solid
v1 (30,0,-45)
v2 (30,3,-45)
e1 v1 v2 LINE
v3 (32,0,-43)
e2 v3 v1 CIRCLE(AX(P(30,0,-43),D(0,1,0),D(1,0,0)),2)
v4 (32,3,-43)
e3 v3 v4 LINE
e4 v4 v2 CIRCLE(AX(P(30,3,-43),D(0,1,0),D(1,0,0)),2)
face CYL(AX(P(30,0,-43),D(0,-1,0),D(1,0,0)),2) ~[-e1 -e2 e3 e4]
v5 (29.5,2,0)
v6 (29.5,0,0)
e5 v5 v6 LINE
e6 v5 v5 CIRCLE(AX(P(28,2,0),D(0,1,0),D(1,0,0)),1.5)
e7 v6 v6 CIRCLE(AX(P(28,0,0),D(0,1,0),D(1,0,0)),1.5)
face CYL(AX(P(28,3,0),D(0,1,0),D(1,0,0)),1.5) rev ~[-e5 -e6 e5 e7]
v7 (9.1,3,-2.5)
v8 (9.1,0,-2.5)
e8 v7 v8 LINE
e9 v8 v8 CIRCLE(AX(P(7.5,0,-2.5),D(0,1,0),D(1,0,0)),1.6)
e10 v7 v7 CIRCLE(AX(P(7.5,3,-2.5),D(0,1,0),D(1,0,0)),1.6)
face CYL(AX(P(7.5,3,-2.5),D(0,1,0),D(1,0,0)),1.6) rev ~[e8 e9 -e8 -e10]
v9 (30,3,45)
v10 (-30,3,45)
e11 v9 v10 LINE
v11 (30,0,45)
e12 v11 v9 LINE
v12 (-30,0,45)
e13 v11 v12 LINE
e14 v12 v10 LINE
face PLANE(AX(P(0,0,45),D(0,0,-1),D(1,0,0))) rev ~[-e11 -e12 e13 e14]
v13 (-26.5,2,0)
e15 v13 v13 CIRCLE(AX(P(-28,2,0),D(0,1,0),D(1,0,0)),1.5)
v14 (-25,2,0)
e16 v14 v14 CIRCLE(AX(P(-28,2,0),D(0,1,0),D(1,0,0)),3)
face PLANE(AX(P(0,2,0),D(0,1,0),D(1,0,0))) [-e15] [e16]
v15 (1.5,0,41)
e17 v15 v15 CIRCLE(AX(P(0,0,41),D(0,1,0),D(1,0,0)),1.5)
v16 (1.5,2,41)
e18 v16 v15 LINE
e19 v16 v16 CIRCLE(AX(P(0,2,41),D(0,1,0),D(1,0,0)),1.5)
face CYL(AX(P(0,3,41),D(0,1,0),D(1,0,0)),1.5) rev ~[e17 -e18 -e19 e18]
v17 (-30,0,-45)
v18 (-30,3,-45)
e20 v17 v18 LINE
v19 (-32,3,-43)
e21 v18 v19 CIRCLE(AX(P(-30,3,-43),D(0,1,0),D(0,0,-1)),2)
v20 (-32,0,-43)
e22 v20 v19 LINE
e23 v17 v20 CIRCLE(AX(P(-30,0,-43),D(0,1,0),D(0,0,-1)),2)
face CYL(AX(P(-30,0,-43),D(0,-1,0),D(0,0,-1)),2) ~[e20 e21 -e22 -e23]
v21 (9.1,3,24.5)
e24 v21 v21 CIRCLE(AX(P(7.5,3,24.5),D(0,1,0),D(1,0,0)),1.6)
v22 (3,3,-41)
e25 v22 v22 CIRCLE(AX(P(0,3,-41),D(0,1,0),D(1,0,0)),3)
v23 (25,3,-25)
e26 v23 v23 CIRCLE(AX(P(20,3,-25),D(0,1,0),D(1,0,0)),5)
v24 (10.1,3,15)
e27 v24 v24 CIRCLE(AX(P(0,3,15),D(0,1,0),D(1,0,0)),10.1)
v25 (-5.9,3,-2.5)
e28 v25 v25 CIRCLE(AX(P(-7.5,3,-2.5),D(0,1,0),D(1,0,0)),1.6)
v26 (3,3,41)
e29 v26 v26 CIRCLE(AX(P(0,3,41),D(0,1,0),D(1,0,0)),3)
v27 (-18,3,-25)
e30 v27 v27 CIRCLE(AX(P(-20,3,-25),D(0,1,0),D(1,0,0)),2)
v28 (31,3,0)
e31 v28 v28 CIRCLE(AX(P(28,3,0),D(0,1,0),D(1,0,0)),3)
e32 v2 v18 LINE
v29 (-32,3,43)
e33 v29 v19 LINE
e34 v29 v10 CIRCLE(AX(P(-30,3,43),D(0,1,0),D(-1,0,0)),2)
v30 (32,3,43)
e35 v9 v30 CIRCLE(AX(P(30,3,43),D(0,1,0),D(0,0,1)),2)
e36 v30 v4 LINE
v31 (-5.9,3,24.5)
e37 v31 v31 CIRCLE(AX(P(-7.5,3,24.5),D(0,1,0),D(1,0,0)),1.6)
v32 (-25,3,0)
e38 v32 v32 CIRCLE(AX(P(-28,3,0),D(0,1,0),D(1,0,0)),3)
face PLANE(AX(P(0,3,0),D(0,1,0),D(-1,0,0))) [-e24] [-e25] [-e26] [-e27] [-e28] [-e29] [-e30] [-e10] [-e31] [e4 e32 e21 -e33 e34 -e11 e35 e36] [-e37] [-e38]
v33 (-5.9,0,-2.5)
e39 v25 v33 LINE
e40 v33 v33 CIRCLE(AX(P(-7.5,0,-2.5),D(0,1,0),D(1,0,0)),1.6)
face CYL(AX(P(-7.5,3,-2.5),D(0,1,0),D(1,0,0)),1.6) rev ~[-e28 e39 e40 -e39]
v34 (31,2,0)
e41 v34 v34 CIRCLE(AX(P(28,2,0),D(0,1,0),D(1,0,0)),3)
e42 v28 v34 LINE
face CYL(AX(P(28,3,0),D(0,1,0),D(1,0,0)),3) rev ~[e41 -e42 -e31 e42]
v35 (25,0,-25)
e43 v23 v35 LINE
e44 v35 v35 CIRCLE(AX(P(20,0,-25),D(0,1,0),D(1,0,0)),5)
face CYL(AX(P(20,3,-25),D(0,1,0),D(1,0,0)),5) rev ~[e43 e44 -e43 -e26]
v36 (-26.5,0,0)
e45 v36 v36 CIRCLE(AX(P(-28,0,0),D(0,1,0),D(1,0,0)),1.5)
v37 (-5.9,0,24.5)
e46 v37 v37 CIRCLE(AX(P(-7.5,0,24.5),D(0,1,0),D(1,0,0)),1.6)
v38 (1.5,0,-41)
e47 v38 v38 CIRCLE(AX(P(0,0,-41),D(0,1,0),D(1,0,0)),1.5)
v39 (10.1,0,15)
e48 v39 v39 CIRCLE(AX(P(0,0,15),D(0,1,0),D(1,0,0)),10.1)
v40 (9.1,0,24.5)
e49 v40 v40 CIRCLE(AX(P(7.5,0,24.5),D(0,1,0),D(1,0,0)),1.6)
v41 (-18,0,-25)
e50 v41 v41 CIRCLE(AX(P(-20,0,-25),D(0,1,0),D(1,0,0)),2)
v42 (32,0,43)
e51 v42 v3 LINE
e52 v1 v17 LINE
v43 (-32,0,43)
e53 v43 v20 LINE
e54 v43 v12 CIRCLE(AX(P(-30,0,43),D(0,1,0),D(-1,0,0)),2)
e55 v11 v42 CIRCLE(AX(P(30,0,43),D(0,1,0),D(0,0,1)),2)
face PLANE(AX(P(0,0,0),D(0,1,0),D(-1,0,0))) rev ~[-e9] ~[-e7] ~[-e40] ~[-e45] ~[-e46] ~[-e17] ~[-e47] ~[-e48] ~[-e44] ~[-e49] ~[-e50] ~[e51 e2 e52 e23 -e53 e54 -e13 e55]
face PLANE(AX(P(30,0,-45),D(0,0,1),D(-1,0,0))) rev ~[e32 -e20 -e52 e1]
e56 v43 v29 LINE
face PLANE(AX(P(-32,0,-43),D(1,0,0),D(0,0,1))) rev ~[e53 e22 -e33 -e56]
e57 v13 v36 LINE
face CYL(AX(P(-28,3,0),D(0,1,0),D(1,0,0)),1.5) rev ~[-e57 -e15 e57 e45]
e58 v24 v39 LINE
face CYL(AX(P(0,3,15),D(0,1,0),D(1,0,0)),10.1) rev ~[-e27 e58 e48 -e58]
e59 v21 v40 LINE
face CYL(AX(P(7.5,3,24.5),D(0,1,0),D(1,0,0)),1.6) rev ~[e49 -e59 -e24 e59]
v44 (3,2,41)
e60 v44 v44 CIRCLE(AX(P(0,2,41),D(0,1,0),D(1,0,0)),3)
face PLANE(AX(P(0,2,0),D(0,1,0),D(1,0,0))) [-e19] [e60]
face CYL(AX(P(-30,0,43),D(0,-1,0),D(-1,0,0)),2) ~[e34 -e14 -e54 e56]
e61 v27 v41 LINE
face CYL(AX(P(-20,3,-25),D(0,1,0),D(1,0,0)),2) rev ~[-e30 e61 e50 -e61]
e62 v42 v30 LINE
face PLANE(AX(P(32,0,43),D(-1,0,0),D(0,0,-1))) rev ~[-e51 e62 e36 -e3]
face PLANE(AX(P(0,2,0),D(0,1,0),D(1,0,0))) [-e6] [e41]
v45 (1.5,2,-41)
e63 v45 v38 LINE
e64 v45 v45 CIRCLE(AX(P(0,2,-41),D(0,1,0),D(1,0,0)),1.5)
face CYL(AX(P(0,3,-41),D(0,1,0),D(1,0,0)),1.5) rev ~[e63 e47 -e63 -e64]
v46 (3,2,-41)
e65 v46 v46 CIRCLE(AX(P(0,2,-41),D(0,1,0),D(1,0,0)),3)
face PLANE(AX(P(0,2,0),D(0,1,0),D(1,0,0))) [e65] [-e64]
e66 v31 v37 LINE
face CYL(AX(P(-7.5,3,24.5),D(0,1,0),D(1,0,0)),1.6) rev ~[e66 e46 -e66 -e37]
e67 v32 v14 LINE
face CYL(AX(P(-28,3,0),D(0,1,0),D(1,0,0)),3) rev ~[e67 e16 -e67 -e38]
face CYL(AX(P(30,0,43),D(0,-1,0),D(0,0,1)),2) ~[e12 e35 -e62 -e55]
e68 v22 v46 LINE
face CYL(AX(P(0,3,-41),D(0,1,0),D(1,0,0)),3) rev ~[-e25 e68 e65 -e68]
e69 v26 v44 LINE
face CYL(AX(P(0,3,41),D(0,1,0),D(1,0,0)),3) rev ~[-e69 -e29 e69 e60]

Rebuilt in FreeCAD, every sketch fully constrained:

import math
import FreeCAD as App
import Part
import Sketcher

V = App.Vector
Q = App.Units.Quantity

doc = App.newDocument("Part")
body = doc.addObject("PartDesign::Body", "Body")

sketch1 = body.newObject("Sketcher::SketchObject", "Sketch")
sketch1.AttachmentSupport = (doc.getObject("XZ_Plane"), [""])
sketch1.MapMode = "FlatFace"
sketch1.addGeometry([
    Part.ArcOfCircle(Part.Circle(V(30, 43, 0), V(0, 0, 1), 2), math.radians(0), math.radians(90)),
    Part.LineSegment(V(32, 43, 0), V(32, -43, 0)),
    Part.ArcOfCircle(Part.Circle(V(30, -43, 0), V(0, 0, 1), 2), math.radians(-90), math.radians(0)),
    Part.LineSegment(V(30, -45, 0), V(-30, -45, 0)),
    Part.ArcOfCircle(Part.Circle(V(-30, -43, 0), V(0, 0, 1), 2), math.radians(180), math.radians(270)),
    Part.LineSegment(V(-32, -43, 0), V(-32, 43, 0)),
    Part.ArcOfCircle(Part.Circle(V(-30, 43, 0), V(0, 0, 1), 2), math.radians(90), math.radians(180)),
    Part.LineSegment(V(-30, 45, 0), V(30, 45, 0)),
], False)
sketch1.addConstraint([
    Sketcher.Constraint("Tangent", 0, 1, 1, 1),
    Sketcher.Constraint("Tangent", 1, 2, 2, 2),
    Sketcher.Constraint("Tangent", 2, 1, 3, 1),
    Sketcher.Constraint("Tangent", 3, 2, 4, 2),
    Sketcher.Constraint("Tangent", 4, 1, 5, 1),
    Sketcher.Constraint("Tangent", 5, 2, 6, 2),
    Sketcher.Constraint("Tangent", 6, 1, 7, 1),
    Sketcher.Constraint("Tangent", 7, 2, 0, 2),
    Sketcher.Constraint("Vertical", 1),
    Sketcher.Constraint("Horizontal", 3),
    Sketcher.Constraint("Vertical", 5),
    Sketcher.Constraint("Horizontal", 7),
    Sketcher.Constraint("Equal", 0, 2),
    Sketcher.Constraint("Equal", 2, 4),
    Sketcher.Constraint("Equal", 4, 6),
    Sketcher.Constraint("Symmetric", 0, 3, 4, 3, -1, 1),
    Sketcher.Constraint("Radius", 0, Q("2 mm")),
    Sketcher.Constraint("DistanceX", 3, 2, 3, 1, Q("60 mm")),
    Sketcher.Constraint("DistanceY", 1, 2, 1, 1, Q("86 mm")),
])
pad1 = body.newObject("PartDesign::Pad", "Pad")
pad1.Profile = sketch1
pad1.Length = 3
pad1.Reversed = True

sketch2 = body.newObject("Sketcher::SketchObject", "Sketch001")
sketch2.AttachmentSupport = (doc.getObject("XZ_Plane"), [""])
sketch2.MapMode = "FlatFace"
sketch2.AttachmentOffset = App.Placement(V(0, 0, -3), App.Rotation())
sketch2.addGeometry([
    Part.Circle(V(0, -41, 0), V(0, 0, 1), 1.5),
    Part.Circle(V(-28, 0, 0), V(0, 0, 1), 1.5),
    Part.Circle(V(0, 41, 0), V(0, 0, 1), 1.5),
    Part.Circle(V(28, 0, 0), V(0, 0, 1), 1.5),
    Part.Circle(V(-20, -25, 0), V(0, 0, 1), 2),
    Part.Circle(V(7.5, -2.5, 0), V(0, 0, 1), 1.6),
    Part.Circle(V(7.5, 24.5, 0), V(0, 0, 1), 1.6),
    Part.Circle(V(0, 15, 0), V(0, 0, 1), 10.1),
    Part.Circle(V(-7.5, -2.5, 0), V(0, 0, 1), 1.6),
    Part.Circle(V(-7.5, 24.5, 0), V(0, 0, 1), 1.6),
    Part.Circle(V(20, -25, 0), V(0, 0, 1), 5),
], False)
sketch2.addConstraint([
    Sketcher.Constraint("Equal", 0, 1),
    Sketcher.Constraint("Equal", 1, 2),
    Sketcher.Constraint("Equal", 2, 3),
    Sketcher.Constraint("Equal", 5, 6),
    Sketcher.Constraint("Equal", 6, 8),
    Sketcher.Constraint("Equal", 8, 9),
    Sketcher.Constraint("Symmetric", 0, 3, 2, 3, -1, 1),
    Sketcher.Constraint("Symmetric", 1, 3, 3, 3, -1, 1),
    Sketcher.Constraint("Symmetric", 5, 3, 8, 3, -2),
    Sketcher.Constraint("Symmetric", 6, 3, 9, 3, -2),
    Sketcher.Constraint("Symmetric", 4, 3, 10, 3, -2),
    Sketcher.Constraint("PointOnObject", 0, 3, -2),
    Sketcher.Constraint("PointOnObject", 1, 3, -1),
    Sketcher.Constraint("PointOnObject", 7, 3, -2),
    Sketcher.Constraint("Vertical", 5, 3, 6, 3),
    Sketcher.Constraint("Diameter", 4, Q("4 mm")),
    Sketcher.Constraint("Diameter", 10, Q("10 mm")),
    Sketcher.Constraint("Diameter", 5, Q("3.2 mm")),
    Sketcher.Constraint("Diameter", 7, Q("20.2 mm")),
    Sketcher.Constraint("Diameter", 0, Q("3 mm")),
    Sketcher.Constraint("DistanceY", 0, 3, -1, 1, Q("41 mm")),
    Sketcher.Constraint("DistanceX", 1, 3, -1, 1, Q("28 mm")),
    Sketcher.Constraint("DistanceX", 4, 3, -1, 1, Q("20 mm")),
    Sketcher.Constraint("DistanceY", 4, 3, -1, 1, Q("25 mm")),
    Sketcher.Constraint("DistanceY", -1, 1, 7, 3, Q("15 mm")),
    Sketcher.Constraint("DistanceY", 5, 3, 6, 3, Q("27 mm")),
    Sketcher.Constraint("DistanceX", 8, 3, 5, 3, Q("15 mm")),
    Sketcher.Constraint("DistanceY", 5, 3, -1, 1, Q("2.5 mm")),
])
pocket1 = body.newObject("PartDesign::Pocket", "Pocket")
pocket1.Profile = sketch2
pocket1.Type = "ThroughAll"
pocket1.Reversed = True

sketch3 = body.newObject("Sketcher::SketchObject", "Sketch002")
sketch3.AttachmentSupport = (doc.getObject("XZ_Plane"), [""])
sketch3.MapMode = "FlatFace"
sketch3.AttachmentOffset = App.Placement(V(0, 0, -3), App.Rotation())
sketch3.addGeometry([
    Part.Circle(V(0, 41, 0), V(0, 0, 1), 3),
    Part.Circle(V(0, 41, 0), V(0, 0, 1), 1.5),
    Part.Circle(V(-28, 0, 0), V(0, 0, 1), 3),
    Part.Circle(V(-28, 0, 0), V(0, 0, 1), 1.5),
    Part.Circle(V(0, -41, 0), V(0, 0, 1), 3),
    Part.Circle(V(0, -41, 0), V(0, 0, 1), 1.5),
    Part.Circle(V(28, 0, 0), V(0, 0, 1), 3),
    Part.Circle(V(28, 0, 0), V(0, 0, 1), 1.5),
], False)
sketch3.addConstraint([
    Sketcher.Constraint("Coincident", 1, 3, 0, 3),
    Sketcher.Constraint("Coincident", 3, 3, 2, 3),
    Sketcher.Constraint("Coincident", 5, 3, 4, 3),
    Sketcher.Constraint("Coincident", 7, 3, 6, 3),
    Sketcher.Constraint("Equal", 0, 2),
    Sketcher.Constraint("Equal", 1, 3),
    Sketcher.Constraint("Equal", 2, 4),
    Sketcher.Constraint("Equal", 3, 5),
    Sketcher.Constraint("Equal", 4, 6),
    Sketcher.Constraint("Equal", 5, 7),
    Sketcher.Constraint("Symmetric", 0, 3, 4, 3, -1, 1),
    Sketcher.Constraint("Symmetric", 2, 3, 6, 3, -1, 1),
    Sketcher.Constraint("PointOnObject", 0, 3, -2),
    Sketcher.Constraint("PointOnObject", 2, 3, -1),
    Sketcher.Constraint("Diameter", 0, Q("6 mm")),
    Sketcher.Constraint("Diameter", 1, Q("3 mm")),
    Sketcher.Constraint("DistanceY", -1, 1, 0, 3, Q("41 mm")),
    Sketcher.Constraint("DistanceX", 2, 3, -1, 1, Q("28 mm")),
])
pocket2 = body.newObject("PartDesign::Pocket", "Pocket001")
pocket2.Profile = sketch3
pocket2.Length = 1
pocket2.Reversed = True

doc.recompute()
